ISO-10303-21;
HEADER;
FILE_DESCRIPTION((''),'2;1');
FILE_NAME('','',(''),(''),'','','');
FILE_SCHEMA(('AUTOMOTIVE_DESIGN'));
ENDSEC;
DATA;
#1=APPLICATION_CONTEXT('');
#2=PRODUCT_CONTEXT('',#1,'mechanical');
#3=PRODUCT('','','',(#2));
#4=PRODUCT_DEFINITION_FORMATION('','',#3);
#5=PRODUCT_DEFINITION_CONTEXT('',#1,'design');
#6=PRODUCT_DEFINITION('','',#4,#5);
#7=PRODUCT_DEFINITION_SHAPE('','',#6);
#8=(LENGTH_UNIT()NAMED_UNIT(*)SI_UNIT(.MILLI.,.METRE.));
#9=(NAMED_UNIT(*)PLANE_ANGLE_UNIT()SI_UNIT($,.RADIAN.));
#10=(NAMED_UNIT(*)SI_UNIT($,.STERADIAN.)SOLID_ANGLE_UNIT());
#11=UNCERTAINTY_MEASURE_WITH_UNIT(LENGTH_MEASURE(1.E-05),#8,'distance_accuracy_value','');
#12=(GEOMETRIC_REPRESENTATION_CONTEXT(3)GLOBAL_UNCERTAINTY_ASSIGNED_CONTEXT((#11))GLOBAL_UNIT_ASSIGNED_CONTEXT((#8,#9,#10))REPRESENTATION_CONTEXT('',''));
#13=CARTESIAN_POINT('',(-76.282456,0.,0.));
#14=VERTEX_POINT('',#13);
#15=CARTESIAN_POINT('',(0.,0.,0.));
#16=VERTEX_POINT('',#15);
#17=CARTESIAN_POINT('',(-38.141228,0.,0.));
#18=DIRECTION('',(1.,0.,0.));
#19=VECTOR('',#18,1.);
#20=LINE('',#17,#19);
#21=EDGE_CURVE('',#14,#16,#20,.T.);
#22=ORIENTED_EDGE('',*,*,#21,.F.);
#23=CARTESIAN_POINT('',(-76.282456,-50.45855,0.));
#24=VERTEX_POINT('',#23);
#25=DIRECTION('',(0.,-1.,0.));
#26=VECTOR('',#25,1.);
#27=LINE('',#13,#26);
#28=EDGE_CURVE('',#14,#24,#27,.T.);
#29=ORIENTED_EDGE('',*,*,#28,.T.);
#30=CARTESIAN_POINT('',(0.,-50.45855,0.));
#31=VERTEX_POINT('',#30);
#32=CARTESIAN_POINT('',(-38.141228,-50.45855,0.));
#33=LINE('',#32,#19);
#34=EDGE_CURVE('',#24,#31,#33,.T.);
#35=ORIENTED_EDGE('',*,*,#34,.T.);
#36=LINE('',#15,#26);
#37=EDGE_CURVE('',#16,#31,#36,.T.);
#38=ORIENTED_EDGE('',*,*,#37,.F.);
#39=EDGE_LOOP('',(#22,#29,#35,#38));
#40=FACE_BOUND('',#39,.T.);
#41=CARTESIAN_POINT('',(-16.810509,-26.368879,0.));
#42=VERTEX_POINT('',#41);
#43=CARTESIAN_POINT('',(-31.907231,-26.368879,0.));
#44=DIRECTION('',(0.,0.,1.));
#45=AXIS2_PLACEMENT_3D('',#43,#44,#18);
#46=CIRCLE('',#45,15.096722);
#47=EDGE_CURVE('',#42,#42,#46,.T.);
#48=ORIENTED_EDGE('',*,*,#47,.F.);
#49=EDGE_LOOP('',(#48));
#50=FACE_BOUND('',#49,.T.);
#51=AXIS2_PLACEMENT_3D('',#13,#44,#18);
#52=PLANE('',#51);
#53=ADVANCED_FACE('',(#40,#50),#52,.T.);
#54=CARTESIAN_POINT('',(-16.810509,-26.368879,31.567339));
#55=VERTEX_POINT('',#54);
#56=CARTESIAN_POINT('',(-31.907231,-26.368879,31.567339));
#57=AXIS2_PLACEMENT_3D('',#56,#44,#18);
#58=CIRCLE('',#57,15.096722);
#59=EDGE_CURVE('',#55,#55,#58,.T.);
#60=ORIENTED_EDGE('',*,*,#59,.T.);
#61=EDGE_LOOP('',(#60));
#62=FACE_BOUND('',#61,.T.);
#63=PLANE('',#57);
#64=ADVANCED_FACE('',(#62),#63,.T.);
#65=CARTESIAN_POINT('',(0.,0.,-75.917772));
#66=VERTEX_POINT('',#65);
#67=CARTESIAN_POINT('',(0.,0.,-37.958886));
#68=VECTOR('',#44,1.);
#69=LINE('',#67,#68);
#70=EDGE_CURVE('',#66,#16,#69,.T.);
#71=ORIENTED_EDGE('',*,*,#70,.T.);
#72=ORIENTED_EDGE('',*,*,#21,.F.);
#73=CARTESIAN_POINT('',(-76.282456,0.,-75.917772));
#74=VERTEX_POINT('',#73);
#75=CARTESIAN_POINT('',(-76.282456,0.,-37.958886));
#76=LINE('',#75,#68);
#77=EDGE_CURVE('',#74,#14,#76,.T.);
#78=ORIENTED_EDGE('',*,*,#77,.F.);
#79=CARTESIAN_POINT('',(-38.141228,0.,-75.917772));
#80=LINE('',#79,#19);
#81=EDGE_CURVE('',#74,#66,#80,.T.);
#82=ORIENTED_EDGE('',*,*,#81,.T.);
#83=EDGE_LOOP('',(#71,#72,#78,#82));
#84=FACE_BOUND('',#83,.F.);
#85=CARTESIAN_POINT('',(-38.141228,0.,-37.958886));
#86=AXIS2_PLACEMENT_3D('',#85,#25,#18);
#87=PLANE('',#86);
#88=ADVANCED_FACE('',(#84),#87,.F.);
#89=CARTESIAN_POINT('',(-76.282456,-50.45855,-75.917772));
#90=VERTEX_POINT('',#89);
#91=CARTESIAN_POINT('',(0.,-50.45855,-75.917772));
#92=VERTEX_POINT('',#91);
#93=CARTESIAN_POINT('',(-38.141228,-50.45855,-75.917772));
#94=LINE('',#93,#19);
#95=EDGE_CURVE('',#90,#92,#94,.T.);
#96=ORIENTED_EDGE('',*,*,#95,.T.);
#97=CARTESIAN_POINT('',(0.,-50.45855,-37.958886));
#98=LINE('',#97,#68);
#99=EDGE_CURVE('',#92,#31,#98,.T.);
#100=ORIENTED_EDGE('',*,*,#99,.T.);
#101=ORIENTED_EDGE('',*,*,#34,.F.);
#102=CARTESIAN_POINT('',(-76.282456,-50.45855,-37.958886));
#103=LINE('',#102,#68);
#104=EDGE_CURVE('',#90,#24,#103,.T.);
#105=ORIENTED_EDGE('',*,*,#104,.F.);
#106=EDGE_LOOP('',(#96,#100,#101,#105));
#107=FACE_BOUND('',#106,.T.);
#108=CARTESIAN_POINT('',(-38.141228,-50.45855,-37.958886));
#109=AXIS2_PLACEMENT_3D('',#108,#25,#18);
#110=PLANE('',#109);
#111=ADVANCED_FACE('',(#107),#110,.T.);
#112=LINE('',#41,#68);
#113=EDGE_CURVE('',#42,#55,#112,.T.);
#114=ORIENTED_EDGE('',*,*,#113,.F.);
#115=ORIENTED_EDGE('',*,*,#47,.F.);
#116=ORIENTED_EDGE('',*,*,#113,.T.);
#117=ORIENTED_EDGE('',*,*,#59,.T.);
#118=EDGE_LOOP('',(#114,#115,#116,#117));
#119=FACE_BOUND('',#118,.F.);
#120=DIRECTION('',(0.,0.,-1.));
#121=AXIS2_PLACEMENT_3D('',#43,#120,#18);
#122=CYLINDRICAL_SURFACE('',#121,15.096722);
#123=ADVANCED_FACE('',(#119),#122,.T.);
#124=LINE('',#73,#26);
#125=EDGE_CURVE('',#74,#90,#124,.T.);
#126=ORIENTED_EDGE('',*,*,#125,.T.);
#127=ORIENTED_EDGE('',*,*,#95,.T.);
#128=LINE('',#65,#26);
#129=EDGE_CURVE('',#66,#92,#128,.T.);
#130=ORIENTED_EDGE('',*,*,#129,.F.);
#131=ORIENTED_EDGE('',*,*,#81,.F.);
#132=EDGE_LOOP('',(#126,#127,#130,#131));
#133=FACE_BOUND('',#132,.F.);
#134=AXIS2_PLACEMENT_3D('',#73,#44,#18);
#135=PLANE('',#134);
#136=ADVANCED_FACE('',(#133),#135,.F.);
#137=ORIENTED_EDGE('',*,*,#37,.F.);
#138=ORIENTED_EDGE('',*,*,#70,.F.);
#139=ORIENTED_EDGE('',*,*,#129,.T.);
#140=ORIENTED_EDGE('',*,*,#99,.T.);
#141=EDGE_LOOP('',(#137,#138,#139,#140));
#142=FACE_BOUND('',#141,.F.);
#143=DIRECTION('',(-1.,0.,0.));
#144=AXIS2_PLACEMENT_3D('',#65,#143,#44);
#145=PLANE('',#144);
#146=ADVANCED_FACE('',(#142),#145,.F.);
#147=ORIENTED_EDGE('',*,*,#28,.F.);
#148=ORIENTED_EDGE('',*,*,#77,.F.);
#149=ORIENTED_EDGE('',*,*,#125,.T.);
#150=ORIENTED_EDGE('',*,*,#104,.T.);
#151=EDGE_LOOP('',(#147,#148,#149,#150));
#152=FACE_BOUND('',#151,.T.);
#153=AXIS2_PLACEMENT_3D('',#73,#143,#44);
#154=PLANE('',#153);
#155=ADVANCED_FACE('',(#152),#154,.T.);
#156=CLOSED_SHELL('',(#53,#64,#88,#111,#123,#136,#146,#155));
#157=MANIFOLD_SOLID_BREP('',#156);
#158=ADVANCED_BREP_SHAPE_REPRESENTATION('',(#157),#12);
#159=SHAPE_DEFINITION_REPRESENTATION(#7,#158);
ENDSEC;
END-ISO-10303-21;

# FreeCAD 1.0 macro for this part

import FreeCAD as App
import Part
import Sketcher
Q = App.Units.Quantity


def add_polygon(sketch, points):
    """Adds a closed chain of lines whose ends are joined by coincident constraints."""
    first, n = sketch.GeometryCount, len(points)
    for a, b in zip(points, points[1:] + points[:1]):
        sketch.addGeometry(Part.LineSegment(App.Vector(*a, 0), App.Vector(*b, 0)), False)
    for i in range(n):
        sketch.addConstraint(Sketcher.Constraint("Coincident", first + i, 2, first + (i + 1) % n, 1))

doc = App.newDocument("Part")
body = doc.addObject("PartDesign::Body", "Body")

sketch1 = doc.addObject("Sketcher::SketchObject", "Sketch")
body.addObject(sketch1)
sketch1.AttachmentSupport = (doc.XZ_Plane, [""])
sketch1.MapMode = "FlatFace"
add_polygon(sketch1, [(-76.282456, 0), (-76.282456, -75.917772), (0, -75.917772), (0, 0)])
sketch1.addConstraint([
    Sketcher.Constraint("Vertical", 0),
    Sketcher.Constraint("Horizontal", 1),
    Sketcher.Constraint("Vertical", 2),
    Sketcher.Constraint("Horizontal", 3),
    Sketcher.Constraint("Coincident", 2, 2, -1, 1),
    Sketcher.Constraint("DistanceX", 1, 1, 1, 2, Q("76.282457 mm")),
    Sketcher.Constraint("DistanceY", 0, 2, 0, 1, Q("75.917773 mm")),
])
pad1 = doc.addObject("PartDesign::Pad", "Pad")
body.addObject(pad1)
pad1.Profile = sketch1
pad1.Length = 50.45855

sketch2 = doc.addObject("Sketcher::SketchObject", "Sketch001")
body.addObject(sketch2)
sketch2.AttachmentSupport = (doc.XY_Plane, [""])
sketch2.MapMode = "FlatFace"
sketch2.addGeometry(Part.Circle(App.Vector(-31.907231, -26.368879, 0), App.Vector(0, 0, 1), 15.096722), False)
sketch2.addConstraint([
    Sketcher.Constraint("Diameter", 0, Q("30.193444 mm")),
    Sketcher.Constraint("DistanceX", 0, 3, -1, 1, Q("31.907231 mm")),
    Sketcher.Constraint("DistanceY", 0, 3, -1, 1, Q("26.368879 mm")),
])
pad2 = doc.addObject("PartDesign::Pad", "Pad001")
body.addObject(pad2)
pad2.Profile = sketch2
pad2.Length = 31.567339

doc.recompute()
